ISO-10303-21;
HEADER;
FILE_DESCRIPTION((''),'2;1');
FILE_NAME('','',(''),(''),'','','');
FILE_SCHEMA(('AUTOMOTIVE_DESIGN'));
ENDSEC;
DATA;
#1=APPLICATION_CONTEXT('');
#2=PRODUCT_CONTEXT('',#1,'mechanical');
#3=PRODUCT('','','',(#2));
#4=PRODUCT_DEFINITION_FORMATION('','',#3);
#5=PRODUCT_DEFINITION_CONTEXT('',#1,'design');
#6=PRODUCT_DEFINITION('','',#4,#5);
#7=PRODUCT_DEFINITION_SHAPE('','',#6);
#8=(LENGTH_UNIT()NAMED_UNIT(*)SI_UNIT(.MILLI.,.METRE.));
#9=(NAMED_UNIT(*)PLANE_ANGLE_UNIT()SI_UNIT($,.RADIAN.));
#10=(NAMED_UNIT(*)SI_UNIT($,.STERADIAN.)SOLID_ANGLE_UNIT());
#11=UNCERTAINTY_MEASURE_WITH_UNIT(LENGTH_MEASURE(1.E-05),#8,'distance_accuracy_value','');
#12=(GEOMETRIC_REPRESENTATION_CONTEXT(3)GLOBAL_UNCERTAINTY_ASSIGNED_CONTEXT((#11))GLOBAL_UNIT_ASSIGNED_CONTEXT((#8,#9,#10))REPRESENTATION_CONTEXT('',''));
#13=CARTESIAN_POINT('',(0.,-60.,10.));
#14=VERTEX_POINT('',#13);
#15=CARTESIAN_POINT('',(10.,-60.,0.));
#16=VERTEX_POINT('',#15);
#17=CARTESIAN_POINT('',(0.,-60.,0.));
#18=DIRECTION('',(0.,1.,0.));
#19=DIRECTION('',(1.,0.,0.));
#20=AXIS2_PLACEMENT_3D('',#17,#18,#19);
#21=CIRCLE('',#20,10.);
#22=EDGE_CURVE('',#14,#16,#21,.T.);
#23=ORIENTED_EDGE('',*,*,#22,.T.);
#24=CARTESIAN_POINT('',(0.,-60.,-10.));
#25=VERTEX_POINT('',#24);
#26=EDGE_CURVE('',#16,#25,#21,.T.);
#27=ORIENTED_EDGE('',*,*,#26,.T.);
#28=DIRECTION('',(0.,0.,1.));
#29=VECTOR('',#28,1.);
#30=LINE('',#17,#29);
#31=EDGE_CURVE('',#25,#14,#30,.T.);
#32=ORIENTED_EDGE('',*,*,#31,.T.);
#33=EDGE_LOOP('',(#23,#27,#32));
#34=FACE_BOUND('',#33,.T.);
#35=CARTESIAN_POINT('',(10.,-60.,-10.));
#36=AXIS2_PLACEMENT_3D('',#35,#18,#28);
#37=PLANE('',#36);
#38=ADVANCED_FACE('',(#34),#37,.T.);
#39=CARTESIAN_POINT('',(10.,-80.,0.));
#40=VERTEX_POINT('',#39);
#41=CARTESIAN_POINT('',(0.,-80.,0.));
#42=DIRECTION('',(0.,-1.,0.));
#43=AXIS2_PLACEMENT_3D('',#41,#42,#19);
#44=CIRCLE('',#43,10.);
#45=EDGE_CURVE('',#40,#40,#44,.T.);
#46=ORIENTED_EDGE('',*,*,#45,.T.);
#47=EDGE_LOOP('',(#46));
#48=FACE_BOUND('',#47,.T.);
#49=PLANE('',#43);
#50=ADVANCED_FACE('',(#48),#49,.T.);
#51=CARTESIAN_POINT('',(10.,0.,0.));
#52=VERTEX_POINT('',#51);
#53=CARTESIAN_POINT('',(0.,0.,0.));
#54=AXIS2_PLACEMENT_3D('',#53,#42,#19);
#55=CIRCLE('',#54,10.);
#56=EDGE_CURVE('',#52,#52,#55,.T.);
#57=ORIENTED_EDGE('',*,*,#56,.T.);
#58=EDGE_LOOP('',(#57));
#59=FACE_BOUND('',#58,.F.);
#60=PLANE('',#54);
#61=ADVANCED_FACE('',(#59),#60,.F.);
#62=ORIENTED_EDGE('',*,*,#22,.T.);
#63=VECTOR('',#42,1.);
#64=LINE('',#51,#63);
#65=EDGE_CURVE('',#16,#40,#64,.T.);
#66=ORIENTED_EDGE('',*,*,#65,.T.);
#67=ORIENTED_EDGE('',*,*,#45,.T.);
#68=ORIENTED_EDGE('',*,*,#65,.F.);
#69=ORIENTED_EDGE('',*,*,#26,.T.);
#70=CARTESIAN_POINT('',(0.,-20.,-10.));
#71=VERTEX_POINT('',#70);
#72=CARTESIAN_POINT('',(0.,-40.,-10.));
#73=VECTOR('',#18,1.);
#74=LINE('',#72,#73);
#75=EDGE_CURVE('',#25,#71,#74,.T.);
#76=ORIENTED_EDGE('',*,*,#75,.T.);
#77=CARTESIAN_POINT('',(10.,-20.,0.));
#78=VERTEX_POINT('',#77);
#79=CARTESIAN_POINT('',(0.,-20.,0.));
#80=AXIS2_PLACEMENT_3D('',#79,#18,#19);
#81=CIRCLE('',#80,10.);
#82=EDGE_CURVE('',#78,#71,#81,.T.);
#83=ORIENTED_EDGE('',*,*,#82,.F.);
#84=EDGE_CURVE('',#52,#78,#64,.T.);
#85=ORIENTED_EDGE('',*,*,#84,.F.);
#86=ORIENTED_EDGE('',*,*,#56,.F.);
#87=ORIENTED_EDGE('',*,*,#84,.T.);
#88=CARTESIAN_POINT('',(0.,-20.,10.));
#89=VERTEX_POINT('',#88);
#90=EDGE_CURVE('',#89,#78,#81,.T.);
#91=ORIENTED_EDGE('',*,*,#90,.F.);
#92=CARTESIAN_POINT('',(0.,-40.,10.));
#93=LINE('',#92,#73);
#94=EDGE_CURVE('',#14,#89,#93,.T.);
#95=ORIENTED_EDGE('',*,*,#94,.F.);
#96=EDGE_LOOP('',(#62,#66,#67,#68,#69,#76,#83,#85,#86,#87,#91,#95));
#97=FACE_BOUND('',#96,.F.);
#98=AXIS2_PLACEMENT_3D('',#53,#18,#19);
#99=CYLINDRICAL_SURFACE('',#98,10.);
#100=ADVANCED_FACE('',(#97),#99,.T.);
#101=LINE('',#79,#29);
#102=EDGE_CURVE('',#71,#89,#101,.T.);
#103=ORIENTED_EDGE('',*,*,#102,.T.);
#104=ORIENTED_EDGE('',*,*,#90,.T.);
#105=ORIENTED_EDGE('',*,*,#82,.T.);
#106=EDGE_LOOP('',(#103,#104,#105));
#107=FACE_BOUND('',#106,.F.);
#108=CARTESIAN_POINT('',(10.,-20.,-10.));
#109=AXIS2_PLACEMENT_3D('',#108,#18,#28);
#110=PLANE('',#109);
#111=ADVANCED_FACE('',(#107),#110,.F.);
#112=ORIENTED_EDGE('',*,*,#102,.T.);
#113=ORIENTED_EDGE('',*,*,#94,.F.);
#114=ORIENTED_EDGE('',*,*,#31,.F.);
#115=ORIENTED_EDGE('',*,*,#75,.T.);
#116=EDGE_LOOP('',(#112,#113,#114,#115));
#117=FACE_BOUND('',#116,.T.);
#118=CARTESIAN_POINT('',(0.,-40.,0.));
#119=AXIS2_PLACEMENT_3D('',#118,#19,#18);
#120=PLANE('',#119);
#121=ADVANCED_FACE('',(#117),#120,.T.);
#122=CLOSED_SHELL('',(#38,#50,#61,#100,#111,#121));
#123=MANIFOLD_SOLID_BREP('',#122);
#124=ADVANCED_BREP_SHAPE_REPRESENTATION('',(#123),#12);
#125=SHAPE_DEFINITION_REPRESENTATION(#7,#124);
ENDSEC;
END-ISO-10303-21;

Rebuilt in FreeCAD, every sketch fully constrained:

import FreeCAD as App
import Part
import Sketcher

V = App.Vector
Q = App.Units.Quantity


def add_polygon(sketch, points):
    """Adds a closed chain of lines whose ends are joined by coincident constraints."""
    first, n = sketch.GeometryCount, len(points)
    for a, b in zip(points, points[1:] + points[:1]):
        sketch.addGeometry(Part.LineSegment(App.Vector(*a, 0), App.Vector(*b, 0)), False)
    for i in range(n):
        sketch.addConstraint(Sketcher.Constraint("Coincident", first + i, 2, first + (i + 1) % n, 1))

doc = App.newDocument("Part")
params = doc.addObject("Spreadsheet::Sheet", "Params")
for row, (alias, value) in enumerate([
    ("sketch1_diameter", "20 mm"),
    ("pad1_length", "80 mm"),
    ("sketch2_width", "40 mm"),
    ("sketch2_height", "20 mm"),
    ("pocket1_length", "10 mm"),
], start=1):
    params.set(f"A{row}", alias)
    params.set(f"B{row}", "=" + value)
    params.setAlias(f"B{row}", alias)

body = doc.addObject("PartDesign::Body", "Body")

sketch1 = body.newObject("Sketcher::SketchObject", "Sketch")
sketch1.AttachmentSupport = (doc.getObject("XZ_Plane"), [""])
sketch1.MapMode = "FlatFace"
sketch1.addGeometry(Part.Circle(V(0, 0, 0), V(0, 0, 1), 10), False)
sketch1.addConstraint(Sketcher.Constraint("Coincident", 0, 3, -1, 1))
sketch1.addConstraint(Sketcher.Constraint("Diameter", 0, Q("20 mm")))
sketch1.setExpression("Constraints[1]", "Params.sketch1_diameter")
pad1 = body.newObject("PartDesign::Pad", "Pad")
pad1.Profile = sketch1
pad1.setExpression("Length", "Params.pad1_length")

sketch2 = body.newObject("Sketcher::SketchObject", "Sketch001")
sketch2.AttachmentSupport = (doc.getObject("YZ_Plane"), [""])
sketch2.MapMode = "FlatFace"
sketch2.AttachmentOffset = App.Placement(V(0, 0, 10), App.Rotation())
add_polygon(sketch2, [(-60, 10), (-60, -10), (-20, -10), (-20, 10)])
sketch2.addConstraint(Sketcher.Constraint("Vertical", 0))
sketch2.addConstraint(Sketcher.Constraint("Horizontal", 1))
sketch2.addConstraint(Sketcher.Constraint("Vertical", 2))
sketch2.addConstraint(Sketcher.Constraint("Horizontal", 3))
sketch2.addConstraint(Sketcher.Constraint("DistanceX", 1, 1, 1, 2, Q("40 mm")))
sketch2.addConstraint(Sketcher.Constraint("DistanceY", 0, 2, 0, 1, Q("20 mm")))
sketch2.addConstraint(Sketcher.Constraint("DistanceX", 0, 2, -1, 1, Q("60 mm")))
sketch2.addConstraint(Sketcher.Constraint("DistanceY", 0, 2, -1, 1, Q("10 mm")))
sketch2.setExpression("Constraints[8]", "Params.sketch2_width")
sketch2.setExpression("Constraints[9]", "Params.sketch2_height")
pocket1 = body.newObject("PartDesign::Pocket", "Pocket")
pocket1.Profile = sketch2
pocket1.setExpression("Length", "Params.pocket1_length")

doc.recompute()
